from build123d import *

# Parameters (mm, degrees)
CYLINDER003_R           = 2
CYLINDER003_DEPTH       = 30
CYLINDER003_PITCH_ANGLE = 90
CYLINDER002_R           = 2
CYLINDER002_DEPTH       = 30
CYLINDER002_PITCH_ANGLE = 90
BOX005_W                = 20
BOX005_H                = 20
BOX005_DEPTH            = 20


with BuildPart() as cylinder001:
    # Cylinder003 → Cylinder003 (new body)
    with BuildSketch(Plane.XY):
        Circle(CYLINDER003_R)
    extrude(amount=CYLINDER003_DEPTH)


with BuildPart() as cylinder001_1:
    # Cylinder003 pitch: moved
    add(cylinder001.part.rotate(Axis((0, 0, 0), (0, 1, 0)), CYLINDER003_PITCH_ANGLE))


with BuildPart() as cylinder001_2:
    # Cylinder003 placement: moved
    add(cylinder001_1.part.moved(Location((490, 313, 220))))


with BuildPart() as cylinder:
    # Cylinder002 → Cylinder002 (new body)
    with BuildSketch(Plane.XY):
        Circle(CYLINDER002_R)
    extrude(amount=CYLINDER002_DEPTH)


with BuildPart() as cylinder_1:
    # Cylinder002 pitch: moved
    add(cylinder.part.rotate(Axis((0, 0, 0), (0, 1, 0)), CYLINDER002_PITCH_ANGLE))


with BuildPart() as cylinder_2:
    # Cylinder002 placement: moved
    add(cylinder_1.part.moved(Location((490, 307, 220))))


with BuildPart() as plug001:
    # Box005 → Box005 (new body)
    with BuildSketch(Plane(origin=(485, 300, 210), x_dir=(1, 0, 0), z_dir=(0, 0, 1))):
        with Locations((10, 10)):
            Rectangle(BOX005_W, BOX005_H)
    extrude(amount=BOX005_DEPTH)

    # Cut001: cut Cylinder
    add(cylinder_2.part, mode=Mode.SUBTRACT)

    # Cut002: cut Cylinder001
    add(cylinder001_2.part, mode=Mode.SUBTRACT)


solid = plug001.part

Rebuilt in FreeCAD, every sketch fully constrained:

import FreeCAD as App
import Part
import Sketcher

doc = App.newDocument("Part")
body = doc.addObject("PartDesign::Body", "Body")

sketch1 = body.newObject("Sketcher::SketchObject", "Sketch")
sketch1.AttachmentSupport = (doc.getObject("XY_Plane"), [""])
sketch1.MapMode = "FlatFace"
sketch1.addGeometry(Part.Circle(App.Vector(0, 0, 0), App.Vector(0, 0, 1), 2), False)
sketch1.addConstraint([
    Sketcher.Constraint("Coincident", 0, 3, -1, 1),
    Sketcher.Constraint("Diameter", 0, 4.0),
])
pad1 = body.newObject("PartDesign::Pad", "Pad")
pad1.Profile = sketch1
pad1.Length = 30
body2 = doc.addObject("PartDesign::Body", "Body001")
doc.recompute()

body.Placement = App.Placement(App.Vector(0, 0, 0), App.Rotation(App.Vector(0, 1, 0), 90))
boolean = body2.newObject("PartDesign::Boolean", "Boolean")
boolean.Type = "Fuse"
boolean.addObjects([body])
body3 = doc.addObject("PartDesign::Body", "Body002")
doc.recompute()

body2.Placement = App.Placement(App.Vector(490, 313, 220), App.Rotation(App.Vector(0, 0, 1), 0))
boolean2 = body3.newObject("PartDesign::Boolean", "Boolean001")
boolean2.Type = "Fuse"
boolean2.addObjects([body2])
body4 = doc.addObject("PartDesign::Body", "Body003")

sketch2 = body4.newObject("Sketcher::SketchObject", "Sketch001")
sketch2.AttachmentSupport = (doc.getObject("XY_Plane003"), [""])
sketch2.MapMode = "FlatFace"
sketch2.addGeometry(Part.Circle(App.Vector(0, 0, 0), App.Vector(0, 0, 1), 2), False)
sketch2.addConstraint([
    Sketcher.Constraint("Coincident", 0, 3, -1, 1),
    Sketcher.Constraint("Diameter", 0, 4.0),
])
pad2 = body4.newObject("PartDesign::Pad", "Pad001")
pad2.Profile = sketch2
pad2.Length = 30
body5 = doc.addObject("PartDesign::Body", "Body004")
doc.recompute()

body4.Placement = App.Placement(App.Vector(0, 0, 0), App.Rotation(App.Vector(0, 1, 0), 90))
boolean3 = body5.newObject("PartDesign::Boolean", "Boolean002")
boolean3.Type = "Fuse"
boolean3.addObjects([body4])
body6 = doc.addObject("PartDesign::Body", "Body005")
doc.recompute()

body5.Placement = App.Placement(App.Vector(490, 307, 220), App.Rotation(App.Vector(0, 0, 1), 0))
boolean4 = body6.newObject("PartDesign::Boolean", "Boolean003")
boolean4.Type = "Fuse"
boolean4.addObjects([body5])
body7 = doc.addObject("PartDesign::Body", "Body006")

sketch3 = body7.newObject("Sketcher::SketchObject", "Sketch002")
sketch3.AttachmentSupport = (doc.getObject("XY_Plane006"), [""])
sketch3.MapMode = "FlatFace"
sketch3.AttachmentOffset = App.Placement(App.Vector(0, 0, 210), App.Rotation())
sketch3.addGeometry([
    Part.LineSegment(App.Vector(485, 320, 0), App.Vector(485, 300, 0)),
    Part.LineSegment(App.Vector(485, 300, 0), App.Vector(505, 300, 0)),
    Part.LineSegment(App.Vector(505, 300, 0), App.Vector(505, 320, 0)),
    Part.LineSegment(App.Vector(505, 320, 0), App.Vector(485, 320, 0)),
], False)
sketch3.addConstraint([
    Sketcher.Constraint("Coincident", 0, 2, 1, 1),
    Sketcher.Constraint("Coincident", 1, 2, 2, 1),
    Sketcher.Constraint("Coincident", 2, 2, 3, 1),
    Sketcher.Constraint("Coincident", 3, 2, 0, 1),
    Sketcher.Constraint("Vertical", 0),
    Sketcher.Constraint("Horizontal", 1),
    Sketcher.Constraint("Vertical", 2),
    Sketcher.Constraint("Horizontal", 3),
    Sketcher.Constraint("Equal", 3, 0),
    Sketcher.Constraint("DistanceX", 1, 1, 1, 2, 20.0),
    Sketcher.Constraint("DistanceX", -1, 1, 0, 2, 485.0),
    Sketcher.Constraint("DistanceY", -1, 1, 0, 2, 300.0),
])
pad3 = body7.newObject("PartDesign::Pad", "Pad002")
pad3.Profile = sketch3
pad3.Length = 20
doc.recompute()

boolean5 = body7.newObject("PartDesign::Boolean", "Boolean004")
boolean5.Type = "Cut"
boolean5.addObjects([body6])
doc.recompute()

boolean6 = body7.newObject("PartDesign::Boolean", "Boolean005")
boolean6.Type = "Cut"
boolean6.addObjects([body3])

doc.recompute()
